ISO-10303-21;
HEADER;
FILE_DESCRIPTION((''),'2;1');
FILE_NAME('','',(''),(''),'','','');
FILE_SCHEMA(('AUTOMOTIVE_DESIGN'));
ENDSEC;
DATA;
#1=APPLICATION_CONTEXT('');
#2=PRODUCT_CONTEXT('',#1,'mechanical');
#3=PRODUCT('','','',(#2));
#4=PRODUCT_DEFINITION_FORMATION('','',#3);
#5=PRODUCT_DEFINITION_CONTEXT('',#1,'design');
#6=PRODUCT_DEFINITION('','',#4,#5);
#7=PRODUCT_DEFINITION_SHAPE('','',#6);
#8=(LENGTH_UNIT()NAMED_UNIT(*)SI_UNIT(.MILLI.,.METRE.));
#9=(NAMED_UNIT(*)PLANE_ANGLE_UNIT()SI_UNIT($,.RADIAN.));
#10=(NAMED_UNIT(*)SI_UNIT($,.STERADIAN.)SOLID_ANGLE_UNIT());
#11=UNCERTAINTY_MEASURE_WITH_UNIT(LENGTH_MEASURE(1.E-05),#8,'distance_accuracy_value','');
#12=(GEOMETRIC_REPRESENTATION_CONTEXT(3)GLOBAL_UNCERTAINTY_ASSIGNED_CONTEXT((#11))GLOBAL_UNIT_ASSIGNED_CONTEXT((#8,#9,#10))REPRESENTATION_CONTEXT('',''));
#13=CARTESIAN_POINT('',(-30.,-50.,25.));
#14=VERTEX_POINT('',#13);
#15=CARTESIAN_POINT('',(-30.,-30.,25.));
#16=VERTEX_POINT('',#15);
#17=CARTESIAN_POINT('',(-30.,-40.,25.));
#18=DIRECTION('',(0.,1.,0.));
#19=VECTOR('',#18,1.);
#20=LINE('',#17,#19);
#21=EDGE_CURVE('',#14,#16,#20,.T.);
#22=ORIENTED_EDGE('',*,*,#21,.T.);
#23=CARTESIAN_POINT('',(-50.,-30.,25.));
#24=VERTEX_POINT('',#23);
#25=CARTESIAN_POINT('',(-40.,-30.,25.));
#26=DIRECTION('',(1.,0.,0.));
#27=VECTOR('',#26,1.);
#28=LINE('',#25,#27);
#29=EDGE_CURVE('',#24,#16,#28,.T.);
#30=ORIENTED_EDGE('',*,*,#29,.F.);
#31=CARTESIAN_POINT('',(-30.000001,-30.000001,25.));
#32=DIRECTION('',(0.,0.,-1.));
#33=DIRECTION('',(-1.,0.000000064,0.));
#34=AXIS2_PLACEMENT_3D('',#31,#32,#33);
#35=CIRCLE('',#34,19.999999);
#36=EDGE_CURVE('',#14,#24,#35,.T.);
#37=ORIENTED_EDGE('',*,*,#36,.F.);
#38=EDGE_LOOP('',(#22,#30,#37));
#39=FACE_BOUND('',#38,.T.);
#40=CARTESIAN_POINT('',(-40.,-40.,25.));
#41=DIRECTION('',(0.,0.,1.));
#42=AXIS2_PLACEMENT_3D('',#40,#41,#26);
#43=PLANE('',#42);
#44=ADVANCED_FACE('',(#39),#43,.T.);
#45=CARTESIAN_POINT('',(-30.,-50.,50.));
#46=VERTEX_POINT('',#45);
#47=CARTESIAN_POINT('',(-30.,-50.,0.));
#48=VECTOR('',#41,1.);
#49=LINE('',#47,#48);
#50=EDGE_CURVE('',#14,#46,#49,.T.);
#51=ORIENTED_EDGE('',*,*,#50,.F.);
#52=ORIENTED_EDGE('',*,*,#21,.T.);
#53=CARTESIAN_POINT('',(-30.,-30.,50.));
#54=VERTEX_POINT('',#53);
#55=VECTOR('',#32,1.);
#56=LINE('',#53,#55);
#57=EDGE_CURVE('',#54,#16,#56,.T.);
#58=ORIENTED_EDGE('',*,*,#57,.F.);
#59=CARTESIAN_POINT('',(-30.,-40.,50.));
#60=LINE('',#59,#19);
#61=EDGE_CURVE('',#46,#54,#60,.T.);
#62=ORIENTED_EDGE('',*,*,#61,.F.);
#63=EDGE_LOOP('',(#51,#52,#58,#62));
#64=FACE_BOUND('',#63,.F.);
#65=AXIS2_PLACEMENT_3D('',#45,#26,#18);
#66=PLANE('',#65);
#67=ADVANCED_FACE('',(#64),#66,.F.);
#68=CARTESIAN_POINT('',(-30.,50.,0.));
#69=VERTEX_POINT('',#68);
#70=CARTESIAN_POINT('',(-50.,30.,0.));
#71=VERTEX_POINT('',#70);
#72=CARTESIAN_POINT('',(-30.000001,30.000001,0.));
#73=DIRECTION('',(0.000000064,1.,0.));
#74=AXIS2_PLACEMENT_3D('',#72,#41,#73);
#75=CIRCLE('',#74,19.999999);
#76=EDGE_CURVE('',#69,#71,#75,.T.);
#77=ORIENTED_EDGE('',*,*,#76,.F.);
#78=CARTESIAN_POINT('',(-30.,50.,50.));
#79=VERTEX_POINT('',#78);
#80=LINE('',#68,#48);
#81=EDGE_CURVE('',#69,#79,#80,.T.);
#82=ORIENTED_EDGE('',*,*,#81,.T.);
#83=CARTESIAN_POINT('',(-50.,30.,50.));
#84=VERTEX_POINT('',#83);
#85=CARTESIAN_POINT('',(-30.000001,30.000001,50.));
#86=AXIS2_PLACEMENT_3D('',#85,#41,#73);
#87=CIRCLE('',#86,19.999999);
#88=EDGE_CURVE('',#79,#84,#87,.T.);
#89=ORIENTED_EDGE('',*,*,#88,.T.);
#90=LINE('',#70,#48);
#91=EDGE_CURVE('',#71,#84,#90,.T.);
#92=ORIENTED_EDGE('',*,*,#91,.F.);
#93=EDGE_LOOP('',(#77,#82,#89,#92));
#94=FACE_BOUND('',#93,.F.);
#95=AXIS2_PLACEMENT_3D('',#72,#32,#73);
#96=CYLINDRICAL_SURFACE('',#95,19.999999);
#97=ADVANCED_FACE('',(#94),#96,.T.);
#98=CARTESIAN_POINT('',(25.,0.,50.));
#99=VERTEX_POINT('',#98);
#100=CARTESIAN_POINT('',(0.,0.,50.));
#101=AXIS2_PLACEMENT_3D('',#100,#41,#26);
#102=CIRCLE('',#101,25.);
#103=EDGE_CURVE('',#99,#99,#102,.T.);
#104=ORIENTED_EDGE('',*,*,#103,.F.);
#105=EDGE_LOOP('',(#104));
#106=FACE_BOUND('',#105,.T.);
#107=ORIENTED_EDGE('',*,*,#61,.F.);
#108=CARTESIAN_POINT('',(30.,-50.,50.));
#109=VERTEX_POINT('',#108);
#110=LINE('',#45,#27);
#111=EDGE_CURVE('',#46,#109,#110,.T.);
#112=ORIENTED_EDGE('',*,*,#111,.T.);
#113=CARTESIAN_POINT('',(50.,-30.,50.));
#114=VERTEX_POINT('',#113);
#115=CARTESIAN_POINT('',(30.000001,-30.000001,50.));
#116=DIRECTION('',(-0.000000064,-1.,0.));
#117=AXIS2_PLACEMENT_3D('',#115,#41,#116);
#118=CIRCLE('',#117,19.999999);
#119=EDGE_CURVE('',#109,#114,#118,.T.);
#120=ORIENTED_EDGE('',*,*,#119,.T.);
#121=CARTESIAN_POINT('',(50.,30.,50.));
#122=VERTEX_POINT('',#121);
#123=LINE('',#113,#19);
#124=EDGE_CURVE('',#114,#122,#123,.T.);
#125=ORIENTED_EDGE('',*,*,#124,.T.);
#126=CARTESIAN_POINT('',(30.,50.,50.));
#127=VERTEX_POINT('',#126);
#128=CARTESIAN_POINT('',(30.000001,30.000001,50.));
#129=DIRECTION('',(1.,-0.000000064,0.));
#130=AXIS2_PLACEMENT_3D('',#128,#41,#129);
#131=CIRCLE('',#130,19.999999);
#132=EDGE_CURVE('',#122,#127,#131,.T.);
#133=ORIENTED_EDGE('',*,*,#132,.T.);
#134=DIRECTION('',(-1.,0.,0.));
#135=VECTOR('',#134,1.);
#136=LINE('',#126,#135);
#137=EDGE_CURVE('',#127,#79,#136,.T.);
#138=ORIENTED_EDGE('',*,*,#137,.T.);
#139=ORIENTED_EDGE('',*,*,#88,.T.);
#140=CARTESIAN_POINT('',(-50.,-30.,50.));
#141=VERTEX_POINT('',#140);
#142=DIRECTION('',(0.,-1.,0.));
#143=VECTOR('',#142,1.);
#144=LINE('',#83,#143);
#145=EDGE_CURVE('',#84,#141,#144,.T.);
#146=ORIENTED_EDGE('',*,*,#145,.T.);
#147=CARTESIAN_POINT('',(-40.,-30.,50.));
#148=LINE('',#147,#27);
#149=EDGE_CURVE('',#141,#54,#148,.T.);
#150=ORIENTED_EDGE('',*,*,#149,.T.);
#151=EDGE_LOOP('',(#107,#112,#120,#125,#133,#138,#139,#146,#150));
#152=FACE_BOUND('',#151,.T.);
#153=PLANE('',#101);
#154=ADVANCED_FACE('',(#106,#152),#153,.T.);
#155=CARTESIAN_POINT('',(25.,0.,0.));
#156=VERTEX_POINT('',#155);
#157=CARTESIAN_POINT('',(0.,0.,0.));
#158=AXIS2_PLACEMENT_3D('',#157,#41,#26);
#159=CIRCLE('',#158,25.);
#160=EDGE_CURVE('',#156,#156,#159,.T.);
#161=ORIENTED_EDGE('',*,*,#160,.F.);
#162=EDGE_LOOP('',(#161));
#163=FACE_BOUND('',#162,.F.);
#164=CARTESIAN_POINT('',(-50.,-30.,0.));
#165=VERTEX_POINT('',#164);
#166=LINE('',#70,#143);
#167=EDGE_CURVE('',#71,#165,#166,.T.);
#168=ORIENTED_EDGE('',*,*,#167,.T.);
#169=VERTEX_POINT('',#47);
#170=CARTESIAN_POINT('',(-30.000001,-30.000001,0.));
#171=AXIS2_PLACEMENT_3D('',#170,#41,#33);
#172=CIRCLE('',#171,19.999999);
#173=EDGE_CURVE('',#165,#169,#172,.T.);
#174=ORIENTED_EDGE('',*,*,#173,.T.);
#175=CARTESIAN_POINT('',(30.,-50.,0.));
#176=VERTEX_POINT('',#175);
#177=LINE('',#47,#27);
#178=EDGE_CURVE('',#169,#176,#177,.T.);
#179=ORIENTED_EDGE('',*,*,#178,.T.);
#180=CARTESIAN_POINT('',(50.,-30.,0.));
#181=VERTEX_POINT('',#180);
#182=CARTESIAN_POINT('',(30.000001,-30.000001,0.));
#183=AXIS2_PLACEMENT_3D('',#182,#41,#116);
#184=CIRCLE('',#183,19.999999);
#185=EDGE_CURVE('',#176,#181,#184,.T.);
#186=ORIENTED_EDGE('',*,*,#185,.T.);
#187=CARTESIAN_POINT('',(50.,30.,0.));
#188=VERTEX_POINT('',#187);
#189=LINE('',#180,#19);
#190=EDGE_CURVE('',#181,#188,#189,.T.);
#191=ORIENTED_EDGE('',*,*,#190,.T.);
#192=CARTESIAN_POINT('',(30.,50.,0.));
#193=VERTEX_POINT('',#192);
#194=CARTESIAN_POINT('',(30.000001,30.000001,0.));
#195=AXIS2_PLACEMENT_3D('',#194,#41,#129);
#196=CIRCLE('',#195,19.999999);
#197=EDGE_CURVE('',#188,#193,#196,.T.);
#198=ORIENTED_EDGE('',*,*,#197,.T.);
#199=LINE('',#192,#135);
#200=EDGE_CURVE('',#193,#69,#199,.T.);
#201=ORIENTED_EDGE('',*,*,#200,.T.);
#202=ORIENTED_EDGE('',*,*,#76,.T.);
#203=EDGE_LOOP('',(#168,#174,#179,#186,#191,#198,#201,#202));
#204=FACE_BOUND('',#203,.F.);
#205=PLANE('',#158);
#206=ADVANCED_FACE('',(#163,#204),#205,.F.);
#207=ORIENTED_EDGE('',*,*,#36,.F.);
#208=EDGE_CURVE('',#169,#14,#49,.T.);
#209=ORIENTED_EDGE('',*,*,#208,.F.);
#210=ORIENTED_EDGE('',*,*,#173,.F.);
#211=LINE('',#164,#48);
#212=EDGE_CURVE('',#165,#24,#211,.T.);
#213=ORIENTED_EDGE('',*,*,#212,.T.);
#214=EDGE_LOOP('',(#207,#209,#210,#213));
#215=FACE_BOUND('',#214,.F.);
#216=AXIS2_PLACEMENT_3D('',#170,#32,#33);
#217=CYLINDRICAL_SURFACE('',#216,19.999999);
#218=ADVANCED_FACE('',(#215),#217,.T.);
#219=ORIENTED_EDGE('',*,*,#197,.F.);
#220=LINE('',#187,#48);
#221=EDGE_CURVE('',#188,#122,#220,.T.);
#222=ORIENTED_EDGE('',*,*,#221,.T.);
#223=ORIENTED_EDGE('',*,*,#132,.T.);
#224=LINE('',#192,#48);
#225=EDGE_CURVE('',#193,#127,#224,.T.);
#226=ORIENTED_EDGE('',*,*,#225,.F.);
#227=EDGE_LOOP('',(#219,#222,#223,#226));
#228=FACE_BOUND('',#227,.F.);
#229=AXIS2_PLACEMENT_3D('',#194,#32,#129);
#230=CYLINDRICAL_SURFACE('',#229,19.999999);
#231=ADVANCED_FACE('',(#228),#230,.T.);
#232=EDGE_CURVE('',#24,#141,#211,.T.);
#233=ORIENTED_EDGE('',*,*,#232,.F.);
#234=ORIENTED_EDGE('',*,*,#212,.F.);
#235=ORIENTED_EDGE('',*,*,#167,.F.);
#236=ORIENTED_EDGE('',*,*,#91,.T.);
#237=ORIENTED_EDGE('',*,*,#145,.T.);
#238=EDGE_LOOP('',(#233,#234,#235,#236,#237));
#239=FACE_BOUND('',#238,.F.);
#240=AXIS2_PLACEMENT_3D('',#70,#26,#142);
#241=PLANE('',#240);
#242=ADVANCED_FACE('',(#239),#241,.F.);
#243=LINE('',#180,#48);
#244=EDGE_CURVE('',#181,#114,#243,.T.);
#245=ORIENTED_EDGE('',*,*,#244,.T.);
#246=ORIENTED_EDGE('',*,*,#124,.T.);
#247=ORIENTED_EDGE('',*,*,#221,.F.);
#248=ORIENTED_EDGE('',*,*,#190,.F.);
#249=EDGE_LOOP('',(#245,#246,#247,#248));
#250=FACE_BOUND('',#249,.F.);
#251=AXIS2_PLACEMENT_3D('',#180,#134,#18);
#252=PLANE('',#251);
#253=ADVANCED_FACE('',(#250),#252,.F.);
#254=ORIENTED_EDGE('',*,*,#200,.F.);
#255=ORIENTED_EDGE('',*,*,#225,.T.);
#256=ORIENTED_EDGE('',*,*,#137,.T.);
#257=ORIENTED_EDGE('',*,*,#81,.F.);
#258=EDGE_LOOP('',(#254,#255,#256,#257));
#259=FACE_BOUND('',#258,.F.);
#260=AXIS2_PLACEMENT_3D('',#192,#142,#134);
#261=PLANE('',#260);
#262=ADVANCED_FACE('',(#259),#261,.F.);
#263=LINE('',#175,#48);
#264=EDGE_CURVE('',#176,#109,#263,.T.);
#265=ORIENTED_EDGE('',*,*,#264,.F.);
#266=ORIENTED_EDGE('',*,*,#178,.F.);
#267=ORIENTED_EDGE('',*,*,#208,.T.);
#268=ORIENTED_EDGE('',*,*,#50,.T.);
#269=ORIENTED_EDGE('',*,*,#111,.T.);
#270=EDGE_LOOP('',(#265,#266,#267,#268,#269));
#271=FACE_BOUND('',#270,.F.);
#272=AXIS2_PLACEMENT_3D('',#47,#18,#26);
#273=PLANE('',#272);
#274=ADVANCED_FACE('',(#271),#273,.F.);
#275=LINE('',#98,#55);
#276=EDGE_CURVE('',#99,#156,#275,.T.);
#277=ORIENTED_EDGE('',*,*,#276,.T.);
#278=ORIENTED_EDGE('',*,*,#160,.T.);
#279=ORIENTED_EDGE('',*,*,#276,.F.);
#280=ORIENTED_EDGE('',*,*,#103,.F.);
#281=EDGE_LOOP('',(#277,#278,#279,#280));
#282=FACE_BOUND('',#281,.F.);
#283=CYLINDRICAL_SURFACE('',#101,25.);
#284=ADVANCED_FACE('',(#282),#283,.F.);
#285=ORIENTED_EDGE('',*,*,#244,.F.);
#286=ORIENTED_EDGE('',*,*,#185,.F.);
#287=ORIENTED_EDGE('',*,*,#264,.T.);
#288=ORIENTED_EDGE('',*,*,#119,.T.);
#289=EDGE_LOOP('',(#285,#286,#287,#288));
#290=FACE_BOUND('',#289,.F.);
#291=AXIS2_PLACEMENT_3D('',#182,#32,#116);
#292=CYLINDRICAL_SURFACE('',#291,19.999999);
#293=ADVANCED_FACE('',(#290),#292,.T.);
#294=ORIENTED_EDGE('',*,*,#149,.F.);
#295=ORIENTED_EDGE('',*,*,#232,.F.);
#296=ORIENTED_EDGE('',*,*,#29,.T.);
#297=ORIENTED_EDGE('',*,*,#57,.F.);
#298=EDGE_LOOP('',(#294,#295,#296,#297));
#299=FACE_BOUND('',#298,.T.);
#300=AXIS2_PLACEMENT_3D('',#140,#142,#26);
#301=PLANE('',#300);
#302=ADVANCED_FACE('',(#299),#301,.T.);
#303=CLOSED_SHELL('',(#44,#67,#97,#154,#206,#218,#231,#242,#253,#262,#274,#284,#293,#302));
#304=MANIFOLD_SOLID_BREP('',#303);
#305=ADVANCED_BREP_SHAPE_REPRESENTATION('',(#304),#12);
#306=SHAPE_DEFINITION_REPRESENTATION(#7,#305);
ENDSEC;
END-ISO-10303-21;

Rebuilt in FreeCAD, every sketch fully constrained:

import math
import FreeCAD as App
import Part
import Sketcher
Q = App.Units.Quantity

doc = App.newDocument("Part")
params = doc.addObject("Spreadsheet::Sheet", "Params")
for row, (alias, value) in enumerate([
    ("sketch1_radius", "19.999999 mm"),
    ("sketch1_width", "60 mm"),
    ("pad1_length", "50 mm"),
    ("sketch2_diameter", "50 mm"),
    ("sketch3_width", "20 mm"),
    ("pocket2_length", "25 mm"),
], start=1):
    params.set(f"A{row}", alias)
    params.set(f"B{row}", "=" + value)
    params.setAlias(f"B{row}", alias)

body = doc.addObject("PartDesign::Body", "Body")

# Sketch on XY plane
sketch1 = body.newObject("Sketcher::SketchObject", "Sketch")
sketch1.AttachmentSupport = (doc.getObject("XY_Plane"), [""])
sketch1.MapMode = "FlatFace"
sketch1.addGeometry(Part.ArcOfCircle(Part.Circle(App.Vector(30, 30, 0), App.Vector(0, 0, 1), 20), math.radians(0), math.radians(90)), False)
sketch1.addGeometry(Part.LineSegment(App.Vector(30, 50, 0), App.Vector(-30, 50, 0)), False)
sketch1.addGeometry(Part.ArcOfCircle(Part.Circle(App.Vector(-30, 30, 0), App.Vector(0, 0, 1), 20), math.radians(90), math.radians(180)), False)
sketch1.addGeometry(Part.LineSegment(App.Vector(-50, 30, 0), App.Vector(-50, -30, 0)), False)
sketch1.addGeometry(Part.ArcOfCircle(Part.Circle(App.Vector(-30, -30, 0), App.Vector(0, 0, 1), 20), math.radians(180), math.radians(270)), False)
sketch1.addGeometry(Part.LineSegment(App.Vector(-30, -50, 0), App.Vector(30, -50, 0)), False)
sketch1.addGeometry(Part.ArcOfCircle(Part.Circle(App.Vector(30, -30, 0), App.Vector(0, 0, 1), 20), math.radians(-90), math.radians(0)), False)
sketch1.addGeometry(Part.LineSegment(App.Vector(50, -30, 0), App.Vector(50, 30, 0)), False)
sketch1.addConstraint(Sketcher.Constraint("Tangent", 0, 2, 1, 1))
sketch1.addConstraint(Sketcher.Constraint("Tangent", 1, 2, 2, 1))
sketch1.addConstraint(Sketcher.Constraint("Tangent", 2, 2, 3, 1))
sketch1.addConstraint(Sketcher.Constraint("Tangent", 3, 2, 4, 1))
sketch1.addConstraint(Sketcher.Constraint("Tangent", 4, 2, 5, 1))
sketch1.addConstraint(Sketcher.Constraint("Tangent", 5, 2, 6, 1))
sketch1.addConstraint(Sketcher.Constraint("Tangent", 6, 2, 7, 1))
sketch1.addConstraint(Sketcher.Constraint("Tangent", 7, 2, 0, 1))
sketch1.addConstraint(Sketcher.Constraint("Horizontal", 1))
sketch1.addConstraint(Sketcher.Constraint("Vertical", 3))
sketch1.addConstraint(Sketcher.Constraint("Horizontal", 5))
sketch1.addConstraint(Sketcher.Constraint("Vertical", 7))
sketch1.addConstraint(Sketcher.Constraint("Equal", 0, 2))
sketch1.addConstraint(Sketcher.Constraint("Equal", 2, 4))
sketch1.addConstraint(Sketcher.Constraint("Equal", 4, 6))
sketch1.addConstraint(Sketcher.Constraint("Symmetric", 0, 3, 4, 3, -1, 1))
sketch1.addConstraint(Sketcher.Constraint("Equal", 5, 3))
sketch1.addConstraint(Sketcher.Constraint("Radius", 0, Q("19.999999 mm")))
sketch1.addConstraint(Sketcher.Constraint("DistanceX", 1, 2, 1, 1, Q("60 mm")))
sketch1.setExpression("Constraints[17]", "Params.sketch1_radius")
sketch1.setExpression("Constraints[18]", "Params.sketch1_width")
pad1 = body.newObject("PartDesign::Pad", "Pad")
pad1.Profile = sketch1
pad1.setExpression("Length", "Params.pad1_length")

# Sketch on XY plane
sketch2 = body.newObject("Sketcher::SketchObject", "Sketch001")
sketch2.AttachmentSupport = (doc.getObject("XY_Plane"), [""])
sketch2.MapMode = "FlatFace"
sketch2.AttachmentOffset = App.Placement(App.Vector(0, 0, 50), App.Rotation())
sketch2.addGeometry(Part.Circle(App.Vector(0, 0, 0), App.Vector(0, 0, 1), 25), False)
sketch2.addConstraint(Sketcher.Constraint("Coincident", 0, 3, -1, 1))
sketch2.addConstraint(Sketcher.Constraint("Diameter", 0, Q("50 mm")))
sketch2.setExpression("Constraints[1]", "Params.sketch2_diameter")
pocket1 = body.newObject("PartDesign::Pocket", "Pocket")
pocket1.Profile = sketch2
pocket1.Type = "ThroughAll"

# Sketch on XY plane
sketch3 = body.newObject("Sketcher::SketchObject", "Sketch002")
sketch3.AttachmentSupport = (doc.getObject("XY_Plane"), [""])
sketch3.MapMode = "FlatFace"
sketch3.AttachmentOffset = App.Placement(App.Vector(0, 0, 50), App.Rotation())
sketch3.addGeometry(Part.LineSegment(App.Vector(-50, -30, 0), App.Vector(-50, -50, 0)), False)
sketch3.addGeometry(Part.LineSegment(App.Vector(-50, -50, 0), App.Vector(-30, -50, 0)), False)
sketch3.addGeometry(Part.LineSegment(App.Vector(-30, -50, 0), App.Vector(-30, -30, 0)), False)
sketch3.addGeometry(Part.LineSegment(App.Vector(-30, -30, 0), App.Vector(-50, -30, 0)), False)
sketch3.addConstraint(Sketcher.Constraint("Coincident", 0, 2, 1, 1))
sketch3.addConstraint(Sketcher.Constraint("Coincident", 1, 2, 2, 1))
sketch3.addConstraint(Sketcher.Constraint("Coincident", 2, 2, 3, 1))
sketch3.addConstraint(Sketcher.Constraint("Coincident", 3, 2, 0, 1))
sketch3.addConstraint(Sketcher.Constraint("Vertical", 0))
sketch3.addConstraint(Sketcher.Constraint("Horizontal", 1))
sketch3.addConstraint(Sketcher.Constraint("Vertical", 2))
sketch3.addConstraint(Sketcher.Constraint("Horizontal", 3))
sketch3.addConstraint(Sketcher.Constraint("Equal", 3, 0))
sketch3.addConstraint(Sketcher.Constraint("DistanceX", 1, 1, 1, 2, Q("20 mm")))
sketch3.addConstraint(Sketcher.Constraint("DistanceX", 0, 2, -1, 1, Q("50 mm")))
sketch3.addConstraint(Sketcher.Constraint("DistanceY", 0, 2, -1, 1, Q("50 mm")))
sketch3.setExpression("Constraints[9]", "Params.sketch3_width")
pocket2 = body.newObject("PartDesign::Pocket", "Pocket001")
pocket2.Profile = sketch3
pocket2.setExpression("Length", "Params.pocket2_length")

doc.recompute()
